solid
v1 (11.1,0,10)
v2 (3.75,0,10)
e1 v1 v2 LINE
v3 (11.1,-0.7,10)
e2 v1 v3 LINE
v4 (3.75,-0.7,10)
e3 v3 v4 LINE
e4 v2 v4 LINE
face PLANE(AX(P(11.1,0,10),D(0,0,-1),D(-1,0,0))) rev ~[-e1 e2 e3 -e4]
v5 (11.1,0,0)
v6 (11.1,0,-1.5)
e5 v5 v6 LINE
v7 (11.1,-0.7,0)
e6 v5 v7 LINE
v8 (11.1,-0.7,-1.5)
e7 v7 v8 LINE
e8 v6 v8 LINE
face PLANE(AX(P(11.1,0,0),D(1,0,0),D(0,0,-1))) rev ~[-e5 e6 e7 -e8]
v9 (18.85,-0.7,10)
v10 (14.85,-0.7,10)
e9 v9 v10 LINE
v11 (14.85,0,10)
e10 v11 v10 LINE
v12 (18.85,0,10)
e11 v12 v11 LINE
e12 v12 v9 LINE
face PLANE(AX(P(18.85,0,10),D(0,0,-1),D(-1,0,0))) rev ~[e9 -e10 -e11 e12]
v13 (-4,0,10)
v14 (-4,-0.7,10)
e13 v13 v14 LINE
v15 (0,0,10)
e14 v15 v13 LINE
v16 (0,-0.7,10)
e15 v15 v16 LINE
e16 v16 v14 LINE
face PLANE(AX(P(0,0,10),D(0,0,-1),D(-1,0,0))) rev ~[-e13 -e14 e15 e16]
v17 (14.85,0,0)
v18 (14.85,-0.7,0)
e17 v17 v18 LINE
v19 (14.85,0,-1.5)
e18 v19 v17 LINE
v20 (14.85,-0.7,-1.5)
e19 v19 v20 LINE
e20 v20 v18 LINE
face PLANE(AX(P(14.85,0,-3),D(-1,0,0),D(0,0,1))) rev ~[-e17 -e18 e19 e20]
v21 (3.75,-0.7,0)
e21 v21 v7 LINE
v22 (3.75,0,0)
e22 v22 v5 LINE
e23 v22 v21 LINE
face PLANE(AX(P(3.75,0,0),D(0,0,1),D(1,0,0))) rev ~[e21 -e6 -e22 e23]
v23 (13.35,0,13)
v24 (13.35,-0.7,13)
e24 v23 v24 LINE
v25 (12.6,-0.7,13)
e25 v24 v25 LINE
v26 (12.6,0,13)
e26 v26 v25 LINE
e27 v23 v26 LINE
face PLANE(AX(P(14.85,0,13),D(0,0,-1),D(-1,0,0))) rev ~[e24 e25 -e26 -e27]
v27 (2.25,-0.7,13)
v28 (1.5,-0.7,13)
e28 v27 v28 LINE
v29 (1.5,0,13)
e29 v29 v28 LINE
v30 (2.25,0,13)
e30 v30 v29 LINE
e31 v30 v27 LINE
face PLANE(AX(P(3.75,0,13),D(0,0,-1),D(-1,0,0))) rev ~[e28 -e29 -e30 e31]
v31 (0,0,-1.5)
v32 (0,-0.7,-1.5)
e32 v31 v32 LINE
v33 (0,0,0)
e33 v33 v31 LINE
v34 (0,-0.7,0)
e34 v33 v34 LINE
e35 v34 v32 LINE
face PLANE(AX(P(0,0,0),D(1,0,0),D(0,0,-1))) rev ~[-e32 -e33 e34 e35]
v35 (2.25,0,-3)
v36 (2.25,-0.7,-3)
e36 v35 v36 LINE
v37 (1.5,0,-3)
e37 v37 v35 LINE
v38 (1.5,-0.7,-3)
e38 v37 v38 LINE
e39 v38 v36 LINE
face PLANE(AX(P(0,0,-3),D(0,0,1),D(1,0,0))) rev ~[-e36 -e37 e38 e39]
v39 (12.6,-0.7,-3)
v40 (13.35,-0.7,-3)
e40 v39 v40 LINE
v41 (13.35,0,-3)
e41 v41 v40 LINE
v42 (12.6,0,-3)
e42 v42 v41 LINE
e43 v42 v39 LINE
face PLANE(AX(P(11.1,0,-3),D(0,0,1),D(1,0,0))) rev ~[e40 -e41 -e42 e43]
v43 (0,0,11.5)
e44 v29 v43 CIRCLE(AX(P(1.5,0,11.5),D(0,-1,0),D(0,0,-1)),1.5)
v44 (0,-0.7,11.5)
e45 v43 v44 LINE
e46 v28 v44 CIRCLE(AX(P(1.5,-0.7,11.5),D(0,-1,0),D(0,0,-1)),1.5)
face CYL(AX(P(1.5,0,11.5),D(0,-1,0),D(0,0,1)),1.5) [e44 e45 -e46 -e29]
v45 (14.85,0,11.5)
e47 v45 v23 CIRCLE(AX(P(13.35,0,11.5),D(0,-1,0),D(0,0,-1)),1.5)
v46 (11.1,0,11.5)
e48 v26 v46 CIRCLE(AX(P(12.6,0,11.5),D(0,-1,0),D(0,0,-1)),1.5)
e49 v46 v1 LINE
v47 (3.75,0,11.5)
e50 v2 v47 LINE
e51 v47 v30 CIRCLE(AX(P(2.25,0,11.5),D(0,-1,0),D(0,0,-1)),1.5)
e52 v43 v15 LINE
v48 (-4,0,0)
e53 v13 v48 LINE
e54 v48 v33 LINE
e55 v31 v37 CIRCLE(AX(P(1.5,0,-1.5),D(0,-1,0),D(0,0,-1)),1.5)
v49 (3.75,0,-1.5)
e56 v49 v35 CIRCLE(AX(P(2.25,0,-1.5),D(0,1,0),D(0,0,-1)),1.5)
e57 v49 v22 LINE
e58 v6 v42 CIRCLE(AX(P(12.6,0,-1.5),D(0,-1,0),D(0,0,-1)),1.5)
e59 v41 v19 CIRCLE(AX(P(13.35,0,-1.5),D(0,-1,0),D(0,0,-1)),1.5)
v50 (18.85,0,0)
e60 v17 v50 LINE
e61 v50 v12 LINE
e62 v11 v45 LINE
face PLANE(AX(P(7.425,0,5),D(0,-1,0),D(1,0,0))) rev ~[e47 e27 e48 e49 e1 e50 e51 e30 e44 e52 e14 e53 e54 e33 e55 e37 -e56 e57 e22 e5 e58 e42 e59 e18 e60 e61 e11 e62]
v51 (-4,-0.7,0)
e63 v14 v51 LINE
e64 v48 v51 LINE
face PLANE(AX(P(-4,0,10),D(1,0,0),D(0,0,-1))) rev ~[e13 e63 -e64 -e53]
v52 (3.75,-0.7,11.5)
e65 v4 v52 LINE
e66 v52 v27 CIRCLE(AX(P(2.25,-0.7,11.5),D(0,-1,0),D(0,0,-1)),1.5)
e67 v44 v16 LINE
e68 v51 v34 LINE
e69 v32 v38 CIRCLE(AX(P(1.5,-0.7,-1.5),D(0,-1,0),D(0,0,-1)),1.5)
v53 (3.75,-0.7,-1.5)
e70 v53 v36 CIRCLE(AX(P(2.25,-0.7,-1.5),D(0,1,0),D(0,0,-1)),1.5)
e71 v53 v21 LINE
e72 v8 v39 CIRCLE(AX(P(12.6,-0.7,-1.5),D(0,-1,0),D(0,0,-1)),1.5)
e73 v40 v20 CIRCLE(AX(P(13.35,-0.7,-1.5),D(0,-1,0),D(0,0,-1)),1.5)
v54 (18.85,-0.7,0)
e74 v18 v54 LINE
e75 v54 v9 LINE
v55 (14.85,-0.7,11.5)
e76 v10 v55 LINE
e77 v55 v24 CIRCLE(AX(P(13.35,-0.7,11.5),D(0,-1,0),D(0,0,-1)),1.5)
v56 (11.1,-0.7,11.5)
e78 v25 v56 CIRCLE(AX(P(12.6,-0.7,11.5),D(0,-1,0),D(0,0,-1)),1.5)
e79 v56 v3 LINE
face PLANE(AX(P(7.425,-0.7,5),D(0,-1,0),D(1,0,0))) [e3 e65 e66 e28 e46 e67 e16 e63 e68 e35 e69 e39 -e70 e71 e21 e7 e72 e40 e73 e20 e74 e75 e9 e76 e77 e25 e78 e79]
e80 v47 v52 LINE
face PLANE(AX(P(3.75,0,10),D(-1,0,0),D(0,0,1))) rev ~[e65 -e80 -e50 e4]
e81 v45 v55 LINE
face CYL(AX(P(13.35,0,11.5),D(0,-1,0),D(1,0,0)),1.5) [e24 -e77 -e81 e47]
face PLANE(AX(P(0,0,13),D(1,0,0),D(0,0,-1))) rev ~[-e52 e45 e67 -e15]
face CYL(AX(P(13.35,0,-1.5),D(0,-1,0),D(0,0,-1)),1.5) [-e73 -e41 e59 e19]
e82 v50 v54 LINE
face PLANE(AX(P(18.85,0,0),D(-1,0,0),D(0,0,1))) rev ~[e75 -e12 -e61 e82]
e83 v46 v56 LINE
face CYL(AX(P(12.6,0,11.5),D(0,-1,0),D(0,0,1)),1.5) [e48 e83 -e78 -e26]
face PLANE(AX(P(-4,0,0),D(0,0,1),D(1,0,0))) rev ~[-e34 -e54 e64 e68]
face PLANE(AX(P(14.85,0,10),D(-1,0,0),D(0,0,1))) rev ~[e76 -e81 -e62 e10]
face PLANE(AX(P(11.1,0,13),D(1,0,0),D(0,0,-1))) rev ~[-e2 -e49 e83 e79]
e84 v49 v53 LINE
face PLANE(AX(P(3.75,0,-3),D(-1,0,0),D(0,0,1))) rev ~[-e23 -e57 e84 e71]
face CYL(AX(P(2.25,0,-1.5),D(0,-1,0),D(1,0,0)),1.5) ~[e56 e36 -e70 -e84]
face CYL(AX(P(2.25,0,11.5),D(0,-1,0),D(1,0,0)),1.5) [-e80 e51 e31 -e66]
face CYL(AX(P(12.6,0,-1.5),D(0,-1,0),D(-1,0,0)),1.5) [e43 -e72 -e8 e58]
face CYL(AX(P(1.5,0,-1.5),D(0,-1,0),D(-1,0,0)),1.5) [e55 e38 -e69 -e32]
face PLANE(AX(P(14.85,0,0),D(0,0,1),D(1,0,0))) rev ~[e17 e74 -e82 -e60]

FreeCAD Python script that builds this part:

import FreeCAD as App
import Part
import Sketcher

V = App.Vector


def edges_at(feature, points):
    """Names of the edges that pass closest to the given points."""
    edges = feature.Shape.Edges
    near = lambda p: min(range(len(edges)), key=lambda i: edges[i].distToShape(Part.Vertex(*p))[0])
    return sorted({f"Edge{near(p) + 1}" for p in points})


def add_polygon(sketch, points):
    """Adds a closed chain of lines whose ends are joined by coincident constraints."""
    first, n = sketch.GeometryCount, len(points)
    for a, b in zip(points, points[1:] + points[:1]):
        sketch.addGeometry(Part.LineSegment(App.Vector(*a, 0), App.Vector(*b, 0)), False)
    for i in range(n):
        sketch.addConstraint(Sketcher.Constraint("Coincident", first + i, 2, first + (i + 1) % n, 1))

doc = App.newDocument("Part")
params = doc.addObject("Spreadsheet::Sheet", "Params")
for row, (alias, value) in enumerate([
    ("sketch1_width", "4 mm"),
    ("sketch1_height", "3 mm"),
    ("sketch1_height2", "10 mm"),
    ("sketch1_width2", "7.35 mm"),
    ("sketch1_width3", "3.75 mm"),
    ("pad1_length", "0.7 mm"),
    ("fillet_radius", "1.5 mm"),
], start=1):
    params.set(f"A{row}", alias)
    params.set(f"B{row}", "=" + value)
    params.setAlias(f"B{row}", alias)

body = doc.addObject("PartDesign::Body", "Body")

sketch1 = body.newObject("Sketcher::SketchObject", "Sketch")
sketch1.AttachmentSupport = (doc.getObject("XZ_Plane"), [""])
sketch1.MapMode = "FlatFace"
add_polygon(sketch1, [(3.8, -3), (3.8, 0), (11.1, 0), (11.1, -3), (14.8, -3), (14.8, 0), (18.9, 0), (18.9, 10), (14.8, 10), (14.8, 13), (11.1, 13), (11.1, 10), (3.8, 10), (3.8, 13), (0, 13), (0, 10), (-4, 10), (-4, 0), (0, 0), (0, -3)])
sketch1.addConstraint(Sketcher.Constraint("Vertical", 0))
sketch1.addConstraint(Sketcher.Constraint("Horizontal", 1))
sketch1.addConstraint(Sketcher.Constraint("Vertical", 2))
sketch1.addConstraint(Sketcher.Constraint("Horizontal", 3))
sketch1.addConstraint(Sketcher.Constraint("Vertical", 4))
sketch1.addConstraint(Sketcher.Constraint("Horizontal", 5))
sketch1.addConstraint(Sketcher.Constraint("Vertical", 6))
sketch1.addConstraint(Sketcher.Constraint("Horizontal", 7))
sketch1.addConstraint(Sketcher.Constraint("Vertical", 8))
sketch1.addConstraint(Sketcher.Constraint("Horizontal", 9))
sketch1.addConstraint(Sketcher.Constraint("Vertical", 10))
sketch1.addConstraint(Sketcher.Constraint("Horizontal", 11))
sketch1.addConstraint(Sketcher.Constraint("Vertical", 12))
sketch1.addConstraint(Sketcher.Constraint("Horizontal", 13))
sketch1.addConstraint(Sketcher.Constraint("Vertical", 14))
sketch1.addConstraint(Sketcher.Constraint("Horizontal", 15))
sketch1.addConstraint(Sketcher.Constraint("Vertical", 16))
sketch1.addConstraint(Sketcher.Constraint("Horizontal", 17))
sketch1.addConstraint(Sketcher.Constraint("Vertical", 18))
sketch1.addConstraint(Sketcher.Constraint("Horizontal", 19))
sketch1.addConstraint(Sketcher.Constraint("Coincident", 17, 2, -1, 1))
sketch1.addConstraint(Sketcher.Constraint("PointOnObject", 0, 2, -1))
sketch1.addConstraint(Sketcher.Constraint("PointOnObject", 4, 2, -1))
sketch1.addConstraint(Sketcher.Constraint("PointOnObject", 13, 2, -2))
sketch1.addConstraint(Sketcher.Constraint("Horizontal", 7, 2, 10, 2))
sketch1.addConstraint(Sketcher.Constraint("Horizontal", 9, 2, 12, 2))
sketch1.addConstraint(Sketcher.Constraint("Horizontal", 11, 2, 14, 2))
sketch1.addConstraint(Sketcher.Constraint("Horizontal", 3, 2, 18, 2))
sketch1.addConstraint(Sketcher.Constraint("Vertical", 4, 2, 7, 2))
sketch1.addConstraint(Sketcher.Constraint("Vertical", 2, 2, 9, 2))
sketch1.addConstraint(Sketcher.Constraint("Vertical", 0, 2, 11, 2))
sketch1.addConstraint(Sketcher.Constraint("Equal", 9, 13))
sketch1.addConstraint(Sketcher.Constraint("Equal", 7, 15))
sketch1.addConstraint(Sketcher.Constraint("Equal", 4, 8))
sketch1.addConstraint(Sketcher.Constraint("DistanceX", 5, 1, 5, 2, 4.0))
sketch1.addConstraint(Sketcher.Constraint("DistanceY", 0, 1, 0, 2, 3.0))
sketch1.addConstraint(Sketcher.Constraint("DistanceY", 6, 1, 6, 2, 10.0))
sketch1.addConstraint(Sketcher.Constraint("DistanceX", 1, 1, 1, 2, 7.35))
sketch1.addConstraint(Sketcher.Constraint("DistanceX", 3, 1, 3, 2, 3.75))
sketch1.setExpression("Constraints[54]", "Params.sketch1_width")
sketch1.setExpression("Constraints[55]", "Params.sketch1_height")
sketch1.setExpression("Constraints[56]", "Params.sketch1_height2")
sketch1.setExpression("Constraints[57]", "Params.sketch1_width2")
sketch1.setExpression("Constraints[58]", "Params.sketch1_width3")
pad1 = body.newObject("PartDesign::Pad", "Pad")
pad1.Profile = sketch1
pad1.setExpression("Length", "Params.pad1_length")
doc.recompute()

fillet = body.newObject("PartDesign::Fillet", "Fillet")
fillet.Base = (pad1, edges_at(pad1, [
    (0, -0.35, 13),
    (3.75, -0.35, 13),
    (11.1, -0.35, 13),
    (14.85, -0.35, 13),
    (0, -0.35, -3),
    (3.75, -0.35, -3),
    (11.1, -0.35, -3),
    (14.85, -0.35, -3),
]))
fillet.setExpression("Radius", "Params.fillet_radius")

doc.recompute()
